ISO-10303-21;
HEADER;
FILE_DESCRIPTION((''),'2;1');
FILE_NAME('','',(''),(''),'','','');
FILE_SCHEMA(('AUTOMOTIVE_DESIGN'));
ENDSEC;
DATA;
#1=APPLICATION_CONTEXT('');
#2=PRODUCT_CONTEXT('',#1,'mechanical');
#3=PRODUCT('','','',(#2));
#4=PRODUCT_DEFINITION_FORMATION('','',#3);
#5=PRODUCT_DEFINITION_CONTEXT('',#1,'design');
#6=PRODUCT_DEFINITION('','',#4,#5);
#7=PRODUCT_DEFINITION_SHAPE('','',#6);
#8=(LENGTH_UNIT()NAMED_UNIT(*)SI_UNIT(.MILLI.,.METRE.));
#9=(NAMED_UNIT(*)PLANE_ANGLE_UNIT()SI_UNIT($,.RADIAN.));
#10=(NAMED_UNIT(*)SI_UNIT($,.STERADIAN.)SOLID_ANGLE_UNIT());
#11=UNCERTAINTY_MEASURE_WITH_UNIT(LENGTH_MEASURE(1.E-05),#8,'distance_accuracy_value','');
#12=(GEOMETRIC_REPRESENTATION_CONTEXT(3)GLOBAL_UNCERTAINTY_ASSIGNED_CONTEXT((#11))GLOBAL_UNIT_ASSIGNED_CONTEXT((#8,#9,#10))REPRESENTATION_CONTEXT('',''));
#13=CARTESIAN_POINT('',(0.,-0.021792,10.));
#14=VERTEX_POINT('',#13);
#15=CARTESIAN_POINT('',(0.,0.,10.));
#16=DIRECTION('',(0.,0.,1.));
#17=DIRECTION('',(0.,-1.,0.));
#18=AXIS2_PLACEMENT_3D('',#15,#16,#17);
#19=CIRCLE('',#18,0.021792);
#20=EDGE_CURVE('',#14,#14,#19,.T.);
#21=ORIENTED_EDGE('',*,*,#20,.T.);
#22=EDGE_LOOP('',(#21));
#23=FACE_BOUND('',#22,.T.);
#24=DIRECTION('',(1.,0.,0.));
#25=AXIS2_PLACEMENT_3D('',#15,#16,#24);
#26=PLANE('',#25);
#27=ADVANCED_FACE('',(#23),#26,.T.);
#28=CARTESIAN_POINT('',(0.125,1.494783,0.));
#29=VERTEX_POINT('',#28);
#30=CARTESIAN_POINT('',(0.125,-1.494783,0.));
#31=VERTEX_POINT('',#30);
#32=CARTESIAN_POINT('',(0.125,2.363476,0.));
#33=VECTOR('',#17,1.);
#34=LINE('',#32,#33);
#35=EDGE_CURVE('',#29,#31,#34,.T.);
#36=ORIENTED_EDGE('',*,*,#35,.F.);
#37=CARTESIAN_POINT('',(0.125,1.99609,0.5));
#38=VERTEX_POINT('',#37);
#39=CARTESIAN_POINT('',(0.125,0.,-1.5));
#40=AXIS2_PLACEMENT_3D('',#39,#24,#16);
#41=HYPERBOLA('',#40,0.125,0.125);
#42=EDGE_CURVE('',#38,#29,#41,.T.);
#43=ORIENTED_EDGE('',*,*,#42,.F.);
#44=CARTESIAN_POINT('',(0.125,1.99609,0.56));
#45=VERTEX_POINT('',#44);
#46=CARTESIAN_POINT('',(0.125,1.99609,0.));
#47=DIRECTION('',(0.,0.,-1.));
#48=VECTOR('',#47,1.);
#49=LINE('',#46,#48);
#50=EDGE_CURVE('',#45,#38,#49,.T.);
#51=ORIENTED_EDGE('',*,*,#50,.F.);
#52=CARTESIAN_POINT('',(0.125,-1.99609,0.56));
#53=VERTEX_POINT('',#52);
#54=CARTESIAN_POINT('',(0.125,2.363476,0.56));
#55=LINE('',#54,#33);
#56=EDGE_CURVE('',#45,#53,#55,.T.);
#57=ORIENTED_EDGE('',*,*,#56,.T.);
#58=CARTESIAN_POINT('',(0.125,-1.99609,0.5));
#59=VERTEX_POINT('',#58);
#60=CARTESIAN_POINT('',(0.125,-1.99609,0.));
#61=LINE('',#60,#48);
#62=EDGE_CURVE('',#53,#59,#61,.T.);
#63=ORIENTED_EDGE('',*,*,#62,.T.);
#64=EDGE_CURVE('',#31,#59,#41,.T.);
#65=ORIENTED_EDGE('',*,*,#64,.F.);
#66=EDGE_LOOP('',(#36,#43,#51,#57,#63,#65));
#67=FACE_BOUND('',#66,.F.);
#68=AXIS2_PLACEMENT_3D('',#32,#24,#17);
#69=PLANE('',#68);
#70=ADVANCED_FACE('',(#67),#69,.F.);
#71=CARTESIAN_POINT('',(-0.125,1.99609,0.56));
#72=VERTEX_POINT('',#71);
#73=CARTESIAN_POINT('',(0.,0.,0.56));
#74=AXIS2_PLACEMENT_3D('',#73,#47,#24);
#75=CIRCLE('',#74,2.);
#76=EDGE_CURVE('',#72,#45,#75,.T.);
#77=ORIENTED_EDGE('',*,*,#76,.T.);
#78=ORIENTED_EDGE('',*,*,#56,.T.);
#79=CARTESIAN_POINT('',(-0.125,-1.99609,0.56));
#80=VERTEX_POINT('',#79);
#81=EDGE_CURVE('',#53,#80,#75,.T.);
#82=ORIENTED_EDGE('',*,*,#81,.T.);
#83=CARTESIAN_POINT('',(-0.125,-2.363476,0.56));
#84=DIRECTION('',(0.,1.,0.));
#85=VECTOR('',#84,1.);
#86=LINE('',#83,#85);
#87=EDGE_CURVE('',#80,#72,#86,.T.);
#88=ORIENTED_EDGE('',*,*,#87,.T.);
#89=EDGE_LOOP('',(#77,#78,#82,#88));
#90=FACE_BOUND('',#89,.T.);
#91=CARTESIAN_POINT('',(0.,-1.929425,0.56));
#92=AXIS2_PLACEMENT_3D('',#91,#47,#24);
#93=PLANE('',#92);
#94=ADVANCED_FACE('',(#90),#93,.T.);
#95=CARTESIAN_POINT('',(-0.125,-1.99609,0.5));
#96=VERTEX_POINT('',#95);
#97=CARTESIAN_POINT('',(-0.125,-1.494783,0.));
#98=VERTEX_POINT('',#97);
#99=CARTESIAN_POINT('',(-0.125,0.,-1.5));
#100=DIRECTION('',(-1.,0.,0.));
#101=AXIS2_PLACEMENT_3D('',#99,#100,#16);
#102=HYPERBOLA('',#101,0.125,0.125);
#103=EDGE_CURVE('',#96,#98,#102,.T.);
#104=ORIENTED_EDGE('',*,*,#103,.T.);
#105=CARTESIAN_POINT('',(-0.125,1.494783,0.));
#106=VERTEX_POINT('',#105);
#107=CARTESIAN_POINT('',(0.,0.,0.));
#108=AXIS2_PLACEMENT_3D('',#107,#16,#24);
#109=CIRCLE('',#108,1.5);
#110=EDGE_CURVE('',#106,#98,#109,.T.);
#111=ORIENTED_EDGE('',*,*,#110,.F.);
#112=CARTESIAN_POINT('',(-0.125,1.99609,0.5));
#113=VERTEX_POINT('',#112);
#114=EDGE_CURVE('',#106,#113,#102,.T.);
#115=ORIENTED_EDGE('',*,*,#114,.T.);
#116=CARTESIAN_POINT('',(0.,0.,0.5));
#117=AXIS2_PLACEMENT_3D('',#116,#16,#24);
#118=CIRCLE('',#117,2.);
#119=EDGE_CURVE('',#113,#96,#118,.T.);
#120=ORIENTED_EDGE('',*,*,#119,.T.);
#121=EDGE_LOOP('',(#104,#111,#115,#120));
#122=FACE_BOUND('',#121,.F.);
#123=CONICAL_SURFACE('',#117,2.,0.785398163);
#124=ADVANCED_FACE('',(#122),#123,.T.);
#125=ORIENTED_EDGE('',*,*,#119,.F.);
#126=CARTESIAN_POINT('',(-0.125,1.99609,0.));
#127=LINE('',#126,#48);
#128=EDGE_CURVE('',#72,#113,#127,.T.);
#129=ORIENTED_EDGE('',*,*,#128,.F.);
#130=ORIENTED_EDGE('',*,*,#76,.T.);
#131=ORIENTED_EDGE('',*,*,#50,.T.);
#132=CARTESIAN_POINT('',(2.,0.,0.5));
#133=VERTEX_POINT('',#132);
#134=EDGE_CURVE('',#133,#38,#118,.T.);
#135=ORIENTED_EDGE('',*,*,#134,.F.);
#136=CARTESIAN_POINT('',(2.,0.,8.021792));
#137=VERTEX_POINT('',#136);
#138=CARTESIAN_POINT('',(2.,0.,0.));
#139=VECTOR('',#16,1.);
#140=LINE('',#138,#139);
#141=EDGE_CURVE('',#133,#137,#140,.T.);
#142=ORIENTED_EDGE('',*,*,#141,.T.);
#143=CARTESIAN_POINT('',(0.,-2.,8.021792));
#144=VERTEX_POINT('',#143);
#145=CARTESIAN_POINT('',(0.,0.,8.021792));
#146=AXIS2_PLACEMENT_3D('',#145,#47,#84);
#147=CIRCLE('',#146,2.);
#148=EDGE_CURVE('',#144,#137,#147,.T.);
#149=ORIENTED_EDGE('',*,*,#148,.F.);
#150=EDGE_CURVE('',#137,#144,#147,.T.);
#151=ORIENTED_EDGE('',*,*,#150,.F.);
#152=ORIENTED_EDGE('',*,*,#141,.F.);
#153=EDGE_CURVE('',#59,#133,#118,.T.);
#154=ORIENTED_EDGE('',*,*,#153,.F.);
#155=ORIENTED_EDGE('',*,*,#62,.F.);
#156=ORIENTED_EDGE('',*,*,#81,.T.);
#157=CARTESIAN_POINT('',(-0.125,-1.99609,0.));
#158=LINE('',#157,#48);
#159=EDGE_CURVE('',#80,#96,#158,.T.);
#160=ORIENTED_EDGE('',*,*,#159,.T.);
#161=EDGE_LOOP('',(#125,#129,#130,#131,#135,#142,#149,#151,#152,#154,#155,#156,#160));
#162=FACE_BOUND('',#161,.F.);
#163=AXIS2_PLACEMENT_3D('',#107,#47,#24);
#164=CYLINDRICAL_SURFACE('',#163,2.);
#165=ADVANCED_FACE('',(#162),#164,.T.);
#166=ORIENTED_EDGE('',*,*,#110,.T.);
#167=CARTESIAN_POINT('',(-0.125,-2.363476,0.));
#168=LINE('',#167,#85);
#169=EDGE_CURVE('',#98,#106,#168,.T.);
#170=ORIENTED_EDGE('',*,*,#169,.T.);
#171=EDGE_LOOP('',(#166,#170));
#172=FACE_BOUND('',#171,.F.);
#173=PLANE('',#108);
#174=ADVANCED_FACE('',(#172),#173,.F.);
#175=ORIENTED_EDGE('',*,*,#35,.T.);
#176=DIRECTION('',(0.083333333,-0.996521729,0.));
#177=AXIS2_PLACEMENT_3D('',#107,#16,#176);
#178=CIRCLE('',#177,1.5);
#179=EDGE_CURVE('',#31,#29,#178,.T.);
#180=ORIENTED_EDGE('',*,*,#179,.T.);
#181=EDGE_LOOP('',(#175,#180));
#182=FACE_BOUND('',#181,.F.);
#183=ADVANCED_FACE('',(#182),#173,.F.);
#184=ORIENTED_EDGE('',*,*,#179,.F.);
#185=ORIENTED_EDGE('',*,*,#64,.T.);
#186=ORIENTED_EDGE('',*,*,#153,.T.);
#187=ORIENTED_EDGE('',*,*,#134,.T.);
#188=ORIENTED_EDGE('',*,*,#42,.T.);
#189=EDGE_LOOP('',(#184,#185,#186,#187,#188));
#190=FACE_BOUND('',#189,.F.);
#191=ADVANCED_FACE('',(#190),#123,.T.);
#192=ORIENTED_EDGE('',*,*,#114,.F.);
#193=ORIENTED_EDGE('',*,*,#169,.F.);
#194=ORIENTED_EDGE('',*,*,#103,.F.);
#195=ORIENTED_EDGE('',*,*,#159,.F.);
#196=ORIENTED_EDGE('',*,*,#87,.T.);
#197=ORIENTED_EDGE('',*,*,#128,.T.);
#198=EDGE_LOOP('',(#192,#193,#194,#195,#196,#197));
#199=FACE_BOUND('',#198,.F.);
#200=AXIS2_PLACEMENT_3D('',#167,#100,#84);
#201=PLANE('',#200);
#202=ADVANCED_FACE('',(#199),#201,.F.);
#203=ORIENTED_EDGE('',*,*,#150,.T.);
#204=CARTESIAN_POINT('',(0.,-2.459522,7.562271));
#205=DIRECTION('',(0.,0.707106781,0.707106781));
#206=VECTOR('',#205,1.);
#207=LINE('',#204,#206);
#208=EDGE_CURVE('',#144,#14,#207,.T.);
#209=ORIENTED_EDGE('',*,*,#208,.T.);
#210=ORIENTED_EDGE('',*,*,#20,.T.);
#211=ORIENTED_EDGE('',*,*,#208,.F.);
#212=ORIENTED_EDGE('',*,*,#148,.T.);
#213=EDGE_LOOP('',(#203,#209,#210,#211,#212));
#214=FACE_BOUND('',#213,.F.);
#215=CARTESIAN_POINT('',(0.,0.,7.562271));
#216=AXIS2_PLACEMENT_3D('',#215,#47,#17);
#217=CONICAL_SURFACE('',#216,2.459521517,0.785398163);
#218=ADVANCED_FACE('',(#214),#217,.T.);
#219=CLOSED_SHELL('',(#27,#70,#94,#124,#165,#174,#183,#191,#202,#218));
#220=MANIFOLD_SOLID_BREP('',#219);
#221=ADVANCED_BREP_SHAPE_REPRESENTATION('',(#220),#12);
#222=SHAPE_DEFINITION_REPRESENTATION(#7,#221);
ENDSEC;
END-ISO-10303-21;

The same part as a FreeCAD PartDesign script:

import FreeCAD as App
import Part
import Sketcher
Q = App.Units.Quantity


def edges_at(feature, points):
    """Names of the edges that pass closest to the given points."""
    edges = feature.Shape.Edges
    near = lambda p: min(range(len(edges)), key=lambda i: edges[i].distToShape(Part.Vertex(*p))[0])
    return sorted({f"Edge{near(p) + 1}" for p in points})


def add_polygon(sketch, points):
    """Adds a closed chain of lines whose ends are joined by coincident constraints."""
    first, n = sketch.GeometryCount, len(points)
    for a, b in zip(points, points[1:] + points[:1]):
        sketch.addGeometry(Part.LineSegment(App.Vector(*a, 0), App.Vector(*b, 0)), False)
    for i in range(n):
        sketch.addConstraint(Sketcher.Constraint("Coincident", first + i, 2, first + (i + 1) % n, 1))

doc = App.newDocument("Part")
body = doc.addObject("PartDesign::Body", "Body")

sketch1 = body.newObject("Sketcher::SketchObject", "Sketch")
sketch1.AttachmentSupport = (doc.getObject("XY_Plane"), [""])
sketch1.MapMode = "FlatFace"
sketch1.addGeometry(Part.Circle(App.Vector(0, 0, 0), App.Vector(0, 0, 1), 2), False)
sketch1.addConstraint(Sketcher.Constraint("Coincident", 0, 3, -1, 1))
sketch1.addConstraint(Sketcher.Constraint("Diameter", 0, 4.0))
pad1 = body.newObject("PartDesign::Pad", "Pad")
pad1.Profile = sketch1
pad1.Length = 10

sketch2 = body.newObject("Sketcher::SketchObject", "Sketch001")
sketch2.AttachmentSupport = (doc.getObject("YZ_Plane"), [""])
sketch2.MapMode = "FlatFace"
add_polygon(sketch2, [(0, 10.2), (-2.46, 10.2), (-2.46, 7.56), (0, 10.02)])
sketch2.addConstraint(Sketcher.Constraint("Horizontal", 0))
sketch2.addConstraint(Sketcher.Constraint("Vertical", 1))
sketch2.addConstraint(Sketcher.Constraint("Vertical", 3))
sketch2.addConstraint(Sketcher.Constraint("PointOnObject", 2, 2, -2))
sketch2.addConstraint(Sketcher.Constraint("Angle", 2, Q("45 deg")))
sketch2.addConstraint(Sketcher.Constraint("DistanceX", 0, 2, 0, 1, 2.459522))
sketch2.addConstraint(Sketcher.Constraint("DistanceY", 1, 2, 1, 1, 2.641505))
sketch2.addConstraint(Sketcher.Constraint("DistanceY", -1, 1, 1, 2, 7.562271))
groove = body.newObject("PartDesign::Groove", "Groove")
groove.Profile = sketch2
groove.ReferenceAxis = (sketch2, ["V_Axis"])
groove.Angle = 360
doc.recompute()

chamfer = body.newObject("PartDesign::Chamfer", "Chamfer")
chamfer.Base = (groove, edges_at(groove, [(-2, 0, 0)]))
chamfer.Size = 0.5

sketch3 = body.newObject("Sketcher::SketchObject", "Sketch002")
sketch3.AttachmentSupport = (doc.getObject("XY_Plane"), [""])
sketch3.MapMode = "FlatFace"
add_polygon(sketch3, [(0.12, -2.36), (-0.12, -2.36), (-0.12, 2.36), (0.12, 2.36)])
sketch3.addConstraint(Sketcher.Constraint("Horizontal", 0))
sketch3.addConstraint(Sketcher.Constraint("Vertical", 1))
sketch3.addConstraint(Sketcher.Constraint("Horizontal", 2))
sketch3.addConstraint(Sketcher.Constraint("Vertical", 3))
sketch3.addConstraint(Sketcher.Constraint("Symmetric", 0, 2, 2, 2, -1, 1))
sketch3.addConstraint(Sketcher.Constraint("DistanceX", 0, 2, 0, 1, 0.25))
sketch3.addConstraint(Sketcher.Constraint("DistanceY", 1, 1, 1, 2, 4.726952))
pocket1 = body.newObject("PartDesign::Pocket", "Pocket")
pocket1.Profile = sketch3
pocket1.Length = 0.56
pocket1.Reversed = True

doc.recompute()
